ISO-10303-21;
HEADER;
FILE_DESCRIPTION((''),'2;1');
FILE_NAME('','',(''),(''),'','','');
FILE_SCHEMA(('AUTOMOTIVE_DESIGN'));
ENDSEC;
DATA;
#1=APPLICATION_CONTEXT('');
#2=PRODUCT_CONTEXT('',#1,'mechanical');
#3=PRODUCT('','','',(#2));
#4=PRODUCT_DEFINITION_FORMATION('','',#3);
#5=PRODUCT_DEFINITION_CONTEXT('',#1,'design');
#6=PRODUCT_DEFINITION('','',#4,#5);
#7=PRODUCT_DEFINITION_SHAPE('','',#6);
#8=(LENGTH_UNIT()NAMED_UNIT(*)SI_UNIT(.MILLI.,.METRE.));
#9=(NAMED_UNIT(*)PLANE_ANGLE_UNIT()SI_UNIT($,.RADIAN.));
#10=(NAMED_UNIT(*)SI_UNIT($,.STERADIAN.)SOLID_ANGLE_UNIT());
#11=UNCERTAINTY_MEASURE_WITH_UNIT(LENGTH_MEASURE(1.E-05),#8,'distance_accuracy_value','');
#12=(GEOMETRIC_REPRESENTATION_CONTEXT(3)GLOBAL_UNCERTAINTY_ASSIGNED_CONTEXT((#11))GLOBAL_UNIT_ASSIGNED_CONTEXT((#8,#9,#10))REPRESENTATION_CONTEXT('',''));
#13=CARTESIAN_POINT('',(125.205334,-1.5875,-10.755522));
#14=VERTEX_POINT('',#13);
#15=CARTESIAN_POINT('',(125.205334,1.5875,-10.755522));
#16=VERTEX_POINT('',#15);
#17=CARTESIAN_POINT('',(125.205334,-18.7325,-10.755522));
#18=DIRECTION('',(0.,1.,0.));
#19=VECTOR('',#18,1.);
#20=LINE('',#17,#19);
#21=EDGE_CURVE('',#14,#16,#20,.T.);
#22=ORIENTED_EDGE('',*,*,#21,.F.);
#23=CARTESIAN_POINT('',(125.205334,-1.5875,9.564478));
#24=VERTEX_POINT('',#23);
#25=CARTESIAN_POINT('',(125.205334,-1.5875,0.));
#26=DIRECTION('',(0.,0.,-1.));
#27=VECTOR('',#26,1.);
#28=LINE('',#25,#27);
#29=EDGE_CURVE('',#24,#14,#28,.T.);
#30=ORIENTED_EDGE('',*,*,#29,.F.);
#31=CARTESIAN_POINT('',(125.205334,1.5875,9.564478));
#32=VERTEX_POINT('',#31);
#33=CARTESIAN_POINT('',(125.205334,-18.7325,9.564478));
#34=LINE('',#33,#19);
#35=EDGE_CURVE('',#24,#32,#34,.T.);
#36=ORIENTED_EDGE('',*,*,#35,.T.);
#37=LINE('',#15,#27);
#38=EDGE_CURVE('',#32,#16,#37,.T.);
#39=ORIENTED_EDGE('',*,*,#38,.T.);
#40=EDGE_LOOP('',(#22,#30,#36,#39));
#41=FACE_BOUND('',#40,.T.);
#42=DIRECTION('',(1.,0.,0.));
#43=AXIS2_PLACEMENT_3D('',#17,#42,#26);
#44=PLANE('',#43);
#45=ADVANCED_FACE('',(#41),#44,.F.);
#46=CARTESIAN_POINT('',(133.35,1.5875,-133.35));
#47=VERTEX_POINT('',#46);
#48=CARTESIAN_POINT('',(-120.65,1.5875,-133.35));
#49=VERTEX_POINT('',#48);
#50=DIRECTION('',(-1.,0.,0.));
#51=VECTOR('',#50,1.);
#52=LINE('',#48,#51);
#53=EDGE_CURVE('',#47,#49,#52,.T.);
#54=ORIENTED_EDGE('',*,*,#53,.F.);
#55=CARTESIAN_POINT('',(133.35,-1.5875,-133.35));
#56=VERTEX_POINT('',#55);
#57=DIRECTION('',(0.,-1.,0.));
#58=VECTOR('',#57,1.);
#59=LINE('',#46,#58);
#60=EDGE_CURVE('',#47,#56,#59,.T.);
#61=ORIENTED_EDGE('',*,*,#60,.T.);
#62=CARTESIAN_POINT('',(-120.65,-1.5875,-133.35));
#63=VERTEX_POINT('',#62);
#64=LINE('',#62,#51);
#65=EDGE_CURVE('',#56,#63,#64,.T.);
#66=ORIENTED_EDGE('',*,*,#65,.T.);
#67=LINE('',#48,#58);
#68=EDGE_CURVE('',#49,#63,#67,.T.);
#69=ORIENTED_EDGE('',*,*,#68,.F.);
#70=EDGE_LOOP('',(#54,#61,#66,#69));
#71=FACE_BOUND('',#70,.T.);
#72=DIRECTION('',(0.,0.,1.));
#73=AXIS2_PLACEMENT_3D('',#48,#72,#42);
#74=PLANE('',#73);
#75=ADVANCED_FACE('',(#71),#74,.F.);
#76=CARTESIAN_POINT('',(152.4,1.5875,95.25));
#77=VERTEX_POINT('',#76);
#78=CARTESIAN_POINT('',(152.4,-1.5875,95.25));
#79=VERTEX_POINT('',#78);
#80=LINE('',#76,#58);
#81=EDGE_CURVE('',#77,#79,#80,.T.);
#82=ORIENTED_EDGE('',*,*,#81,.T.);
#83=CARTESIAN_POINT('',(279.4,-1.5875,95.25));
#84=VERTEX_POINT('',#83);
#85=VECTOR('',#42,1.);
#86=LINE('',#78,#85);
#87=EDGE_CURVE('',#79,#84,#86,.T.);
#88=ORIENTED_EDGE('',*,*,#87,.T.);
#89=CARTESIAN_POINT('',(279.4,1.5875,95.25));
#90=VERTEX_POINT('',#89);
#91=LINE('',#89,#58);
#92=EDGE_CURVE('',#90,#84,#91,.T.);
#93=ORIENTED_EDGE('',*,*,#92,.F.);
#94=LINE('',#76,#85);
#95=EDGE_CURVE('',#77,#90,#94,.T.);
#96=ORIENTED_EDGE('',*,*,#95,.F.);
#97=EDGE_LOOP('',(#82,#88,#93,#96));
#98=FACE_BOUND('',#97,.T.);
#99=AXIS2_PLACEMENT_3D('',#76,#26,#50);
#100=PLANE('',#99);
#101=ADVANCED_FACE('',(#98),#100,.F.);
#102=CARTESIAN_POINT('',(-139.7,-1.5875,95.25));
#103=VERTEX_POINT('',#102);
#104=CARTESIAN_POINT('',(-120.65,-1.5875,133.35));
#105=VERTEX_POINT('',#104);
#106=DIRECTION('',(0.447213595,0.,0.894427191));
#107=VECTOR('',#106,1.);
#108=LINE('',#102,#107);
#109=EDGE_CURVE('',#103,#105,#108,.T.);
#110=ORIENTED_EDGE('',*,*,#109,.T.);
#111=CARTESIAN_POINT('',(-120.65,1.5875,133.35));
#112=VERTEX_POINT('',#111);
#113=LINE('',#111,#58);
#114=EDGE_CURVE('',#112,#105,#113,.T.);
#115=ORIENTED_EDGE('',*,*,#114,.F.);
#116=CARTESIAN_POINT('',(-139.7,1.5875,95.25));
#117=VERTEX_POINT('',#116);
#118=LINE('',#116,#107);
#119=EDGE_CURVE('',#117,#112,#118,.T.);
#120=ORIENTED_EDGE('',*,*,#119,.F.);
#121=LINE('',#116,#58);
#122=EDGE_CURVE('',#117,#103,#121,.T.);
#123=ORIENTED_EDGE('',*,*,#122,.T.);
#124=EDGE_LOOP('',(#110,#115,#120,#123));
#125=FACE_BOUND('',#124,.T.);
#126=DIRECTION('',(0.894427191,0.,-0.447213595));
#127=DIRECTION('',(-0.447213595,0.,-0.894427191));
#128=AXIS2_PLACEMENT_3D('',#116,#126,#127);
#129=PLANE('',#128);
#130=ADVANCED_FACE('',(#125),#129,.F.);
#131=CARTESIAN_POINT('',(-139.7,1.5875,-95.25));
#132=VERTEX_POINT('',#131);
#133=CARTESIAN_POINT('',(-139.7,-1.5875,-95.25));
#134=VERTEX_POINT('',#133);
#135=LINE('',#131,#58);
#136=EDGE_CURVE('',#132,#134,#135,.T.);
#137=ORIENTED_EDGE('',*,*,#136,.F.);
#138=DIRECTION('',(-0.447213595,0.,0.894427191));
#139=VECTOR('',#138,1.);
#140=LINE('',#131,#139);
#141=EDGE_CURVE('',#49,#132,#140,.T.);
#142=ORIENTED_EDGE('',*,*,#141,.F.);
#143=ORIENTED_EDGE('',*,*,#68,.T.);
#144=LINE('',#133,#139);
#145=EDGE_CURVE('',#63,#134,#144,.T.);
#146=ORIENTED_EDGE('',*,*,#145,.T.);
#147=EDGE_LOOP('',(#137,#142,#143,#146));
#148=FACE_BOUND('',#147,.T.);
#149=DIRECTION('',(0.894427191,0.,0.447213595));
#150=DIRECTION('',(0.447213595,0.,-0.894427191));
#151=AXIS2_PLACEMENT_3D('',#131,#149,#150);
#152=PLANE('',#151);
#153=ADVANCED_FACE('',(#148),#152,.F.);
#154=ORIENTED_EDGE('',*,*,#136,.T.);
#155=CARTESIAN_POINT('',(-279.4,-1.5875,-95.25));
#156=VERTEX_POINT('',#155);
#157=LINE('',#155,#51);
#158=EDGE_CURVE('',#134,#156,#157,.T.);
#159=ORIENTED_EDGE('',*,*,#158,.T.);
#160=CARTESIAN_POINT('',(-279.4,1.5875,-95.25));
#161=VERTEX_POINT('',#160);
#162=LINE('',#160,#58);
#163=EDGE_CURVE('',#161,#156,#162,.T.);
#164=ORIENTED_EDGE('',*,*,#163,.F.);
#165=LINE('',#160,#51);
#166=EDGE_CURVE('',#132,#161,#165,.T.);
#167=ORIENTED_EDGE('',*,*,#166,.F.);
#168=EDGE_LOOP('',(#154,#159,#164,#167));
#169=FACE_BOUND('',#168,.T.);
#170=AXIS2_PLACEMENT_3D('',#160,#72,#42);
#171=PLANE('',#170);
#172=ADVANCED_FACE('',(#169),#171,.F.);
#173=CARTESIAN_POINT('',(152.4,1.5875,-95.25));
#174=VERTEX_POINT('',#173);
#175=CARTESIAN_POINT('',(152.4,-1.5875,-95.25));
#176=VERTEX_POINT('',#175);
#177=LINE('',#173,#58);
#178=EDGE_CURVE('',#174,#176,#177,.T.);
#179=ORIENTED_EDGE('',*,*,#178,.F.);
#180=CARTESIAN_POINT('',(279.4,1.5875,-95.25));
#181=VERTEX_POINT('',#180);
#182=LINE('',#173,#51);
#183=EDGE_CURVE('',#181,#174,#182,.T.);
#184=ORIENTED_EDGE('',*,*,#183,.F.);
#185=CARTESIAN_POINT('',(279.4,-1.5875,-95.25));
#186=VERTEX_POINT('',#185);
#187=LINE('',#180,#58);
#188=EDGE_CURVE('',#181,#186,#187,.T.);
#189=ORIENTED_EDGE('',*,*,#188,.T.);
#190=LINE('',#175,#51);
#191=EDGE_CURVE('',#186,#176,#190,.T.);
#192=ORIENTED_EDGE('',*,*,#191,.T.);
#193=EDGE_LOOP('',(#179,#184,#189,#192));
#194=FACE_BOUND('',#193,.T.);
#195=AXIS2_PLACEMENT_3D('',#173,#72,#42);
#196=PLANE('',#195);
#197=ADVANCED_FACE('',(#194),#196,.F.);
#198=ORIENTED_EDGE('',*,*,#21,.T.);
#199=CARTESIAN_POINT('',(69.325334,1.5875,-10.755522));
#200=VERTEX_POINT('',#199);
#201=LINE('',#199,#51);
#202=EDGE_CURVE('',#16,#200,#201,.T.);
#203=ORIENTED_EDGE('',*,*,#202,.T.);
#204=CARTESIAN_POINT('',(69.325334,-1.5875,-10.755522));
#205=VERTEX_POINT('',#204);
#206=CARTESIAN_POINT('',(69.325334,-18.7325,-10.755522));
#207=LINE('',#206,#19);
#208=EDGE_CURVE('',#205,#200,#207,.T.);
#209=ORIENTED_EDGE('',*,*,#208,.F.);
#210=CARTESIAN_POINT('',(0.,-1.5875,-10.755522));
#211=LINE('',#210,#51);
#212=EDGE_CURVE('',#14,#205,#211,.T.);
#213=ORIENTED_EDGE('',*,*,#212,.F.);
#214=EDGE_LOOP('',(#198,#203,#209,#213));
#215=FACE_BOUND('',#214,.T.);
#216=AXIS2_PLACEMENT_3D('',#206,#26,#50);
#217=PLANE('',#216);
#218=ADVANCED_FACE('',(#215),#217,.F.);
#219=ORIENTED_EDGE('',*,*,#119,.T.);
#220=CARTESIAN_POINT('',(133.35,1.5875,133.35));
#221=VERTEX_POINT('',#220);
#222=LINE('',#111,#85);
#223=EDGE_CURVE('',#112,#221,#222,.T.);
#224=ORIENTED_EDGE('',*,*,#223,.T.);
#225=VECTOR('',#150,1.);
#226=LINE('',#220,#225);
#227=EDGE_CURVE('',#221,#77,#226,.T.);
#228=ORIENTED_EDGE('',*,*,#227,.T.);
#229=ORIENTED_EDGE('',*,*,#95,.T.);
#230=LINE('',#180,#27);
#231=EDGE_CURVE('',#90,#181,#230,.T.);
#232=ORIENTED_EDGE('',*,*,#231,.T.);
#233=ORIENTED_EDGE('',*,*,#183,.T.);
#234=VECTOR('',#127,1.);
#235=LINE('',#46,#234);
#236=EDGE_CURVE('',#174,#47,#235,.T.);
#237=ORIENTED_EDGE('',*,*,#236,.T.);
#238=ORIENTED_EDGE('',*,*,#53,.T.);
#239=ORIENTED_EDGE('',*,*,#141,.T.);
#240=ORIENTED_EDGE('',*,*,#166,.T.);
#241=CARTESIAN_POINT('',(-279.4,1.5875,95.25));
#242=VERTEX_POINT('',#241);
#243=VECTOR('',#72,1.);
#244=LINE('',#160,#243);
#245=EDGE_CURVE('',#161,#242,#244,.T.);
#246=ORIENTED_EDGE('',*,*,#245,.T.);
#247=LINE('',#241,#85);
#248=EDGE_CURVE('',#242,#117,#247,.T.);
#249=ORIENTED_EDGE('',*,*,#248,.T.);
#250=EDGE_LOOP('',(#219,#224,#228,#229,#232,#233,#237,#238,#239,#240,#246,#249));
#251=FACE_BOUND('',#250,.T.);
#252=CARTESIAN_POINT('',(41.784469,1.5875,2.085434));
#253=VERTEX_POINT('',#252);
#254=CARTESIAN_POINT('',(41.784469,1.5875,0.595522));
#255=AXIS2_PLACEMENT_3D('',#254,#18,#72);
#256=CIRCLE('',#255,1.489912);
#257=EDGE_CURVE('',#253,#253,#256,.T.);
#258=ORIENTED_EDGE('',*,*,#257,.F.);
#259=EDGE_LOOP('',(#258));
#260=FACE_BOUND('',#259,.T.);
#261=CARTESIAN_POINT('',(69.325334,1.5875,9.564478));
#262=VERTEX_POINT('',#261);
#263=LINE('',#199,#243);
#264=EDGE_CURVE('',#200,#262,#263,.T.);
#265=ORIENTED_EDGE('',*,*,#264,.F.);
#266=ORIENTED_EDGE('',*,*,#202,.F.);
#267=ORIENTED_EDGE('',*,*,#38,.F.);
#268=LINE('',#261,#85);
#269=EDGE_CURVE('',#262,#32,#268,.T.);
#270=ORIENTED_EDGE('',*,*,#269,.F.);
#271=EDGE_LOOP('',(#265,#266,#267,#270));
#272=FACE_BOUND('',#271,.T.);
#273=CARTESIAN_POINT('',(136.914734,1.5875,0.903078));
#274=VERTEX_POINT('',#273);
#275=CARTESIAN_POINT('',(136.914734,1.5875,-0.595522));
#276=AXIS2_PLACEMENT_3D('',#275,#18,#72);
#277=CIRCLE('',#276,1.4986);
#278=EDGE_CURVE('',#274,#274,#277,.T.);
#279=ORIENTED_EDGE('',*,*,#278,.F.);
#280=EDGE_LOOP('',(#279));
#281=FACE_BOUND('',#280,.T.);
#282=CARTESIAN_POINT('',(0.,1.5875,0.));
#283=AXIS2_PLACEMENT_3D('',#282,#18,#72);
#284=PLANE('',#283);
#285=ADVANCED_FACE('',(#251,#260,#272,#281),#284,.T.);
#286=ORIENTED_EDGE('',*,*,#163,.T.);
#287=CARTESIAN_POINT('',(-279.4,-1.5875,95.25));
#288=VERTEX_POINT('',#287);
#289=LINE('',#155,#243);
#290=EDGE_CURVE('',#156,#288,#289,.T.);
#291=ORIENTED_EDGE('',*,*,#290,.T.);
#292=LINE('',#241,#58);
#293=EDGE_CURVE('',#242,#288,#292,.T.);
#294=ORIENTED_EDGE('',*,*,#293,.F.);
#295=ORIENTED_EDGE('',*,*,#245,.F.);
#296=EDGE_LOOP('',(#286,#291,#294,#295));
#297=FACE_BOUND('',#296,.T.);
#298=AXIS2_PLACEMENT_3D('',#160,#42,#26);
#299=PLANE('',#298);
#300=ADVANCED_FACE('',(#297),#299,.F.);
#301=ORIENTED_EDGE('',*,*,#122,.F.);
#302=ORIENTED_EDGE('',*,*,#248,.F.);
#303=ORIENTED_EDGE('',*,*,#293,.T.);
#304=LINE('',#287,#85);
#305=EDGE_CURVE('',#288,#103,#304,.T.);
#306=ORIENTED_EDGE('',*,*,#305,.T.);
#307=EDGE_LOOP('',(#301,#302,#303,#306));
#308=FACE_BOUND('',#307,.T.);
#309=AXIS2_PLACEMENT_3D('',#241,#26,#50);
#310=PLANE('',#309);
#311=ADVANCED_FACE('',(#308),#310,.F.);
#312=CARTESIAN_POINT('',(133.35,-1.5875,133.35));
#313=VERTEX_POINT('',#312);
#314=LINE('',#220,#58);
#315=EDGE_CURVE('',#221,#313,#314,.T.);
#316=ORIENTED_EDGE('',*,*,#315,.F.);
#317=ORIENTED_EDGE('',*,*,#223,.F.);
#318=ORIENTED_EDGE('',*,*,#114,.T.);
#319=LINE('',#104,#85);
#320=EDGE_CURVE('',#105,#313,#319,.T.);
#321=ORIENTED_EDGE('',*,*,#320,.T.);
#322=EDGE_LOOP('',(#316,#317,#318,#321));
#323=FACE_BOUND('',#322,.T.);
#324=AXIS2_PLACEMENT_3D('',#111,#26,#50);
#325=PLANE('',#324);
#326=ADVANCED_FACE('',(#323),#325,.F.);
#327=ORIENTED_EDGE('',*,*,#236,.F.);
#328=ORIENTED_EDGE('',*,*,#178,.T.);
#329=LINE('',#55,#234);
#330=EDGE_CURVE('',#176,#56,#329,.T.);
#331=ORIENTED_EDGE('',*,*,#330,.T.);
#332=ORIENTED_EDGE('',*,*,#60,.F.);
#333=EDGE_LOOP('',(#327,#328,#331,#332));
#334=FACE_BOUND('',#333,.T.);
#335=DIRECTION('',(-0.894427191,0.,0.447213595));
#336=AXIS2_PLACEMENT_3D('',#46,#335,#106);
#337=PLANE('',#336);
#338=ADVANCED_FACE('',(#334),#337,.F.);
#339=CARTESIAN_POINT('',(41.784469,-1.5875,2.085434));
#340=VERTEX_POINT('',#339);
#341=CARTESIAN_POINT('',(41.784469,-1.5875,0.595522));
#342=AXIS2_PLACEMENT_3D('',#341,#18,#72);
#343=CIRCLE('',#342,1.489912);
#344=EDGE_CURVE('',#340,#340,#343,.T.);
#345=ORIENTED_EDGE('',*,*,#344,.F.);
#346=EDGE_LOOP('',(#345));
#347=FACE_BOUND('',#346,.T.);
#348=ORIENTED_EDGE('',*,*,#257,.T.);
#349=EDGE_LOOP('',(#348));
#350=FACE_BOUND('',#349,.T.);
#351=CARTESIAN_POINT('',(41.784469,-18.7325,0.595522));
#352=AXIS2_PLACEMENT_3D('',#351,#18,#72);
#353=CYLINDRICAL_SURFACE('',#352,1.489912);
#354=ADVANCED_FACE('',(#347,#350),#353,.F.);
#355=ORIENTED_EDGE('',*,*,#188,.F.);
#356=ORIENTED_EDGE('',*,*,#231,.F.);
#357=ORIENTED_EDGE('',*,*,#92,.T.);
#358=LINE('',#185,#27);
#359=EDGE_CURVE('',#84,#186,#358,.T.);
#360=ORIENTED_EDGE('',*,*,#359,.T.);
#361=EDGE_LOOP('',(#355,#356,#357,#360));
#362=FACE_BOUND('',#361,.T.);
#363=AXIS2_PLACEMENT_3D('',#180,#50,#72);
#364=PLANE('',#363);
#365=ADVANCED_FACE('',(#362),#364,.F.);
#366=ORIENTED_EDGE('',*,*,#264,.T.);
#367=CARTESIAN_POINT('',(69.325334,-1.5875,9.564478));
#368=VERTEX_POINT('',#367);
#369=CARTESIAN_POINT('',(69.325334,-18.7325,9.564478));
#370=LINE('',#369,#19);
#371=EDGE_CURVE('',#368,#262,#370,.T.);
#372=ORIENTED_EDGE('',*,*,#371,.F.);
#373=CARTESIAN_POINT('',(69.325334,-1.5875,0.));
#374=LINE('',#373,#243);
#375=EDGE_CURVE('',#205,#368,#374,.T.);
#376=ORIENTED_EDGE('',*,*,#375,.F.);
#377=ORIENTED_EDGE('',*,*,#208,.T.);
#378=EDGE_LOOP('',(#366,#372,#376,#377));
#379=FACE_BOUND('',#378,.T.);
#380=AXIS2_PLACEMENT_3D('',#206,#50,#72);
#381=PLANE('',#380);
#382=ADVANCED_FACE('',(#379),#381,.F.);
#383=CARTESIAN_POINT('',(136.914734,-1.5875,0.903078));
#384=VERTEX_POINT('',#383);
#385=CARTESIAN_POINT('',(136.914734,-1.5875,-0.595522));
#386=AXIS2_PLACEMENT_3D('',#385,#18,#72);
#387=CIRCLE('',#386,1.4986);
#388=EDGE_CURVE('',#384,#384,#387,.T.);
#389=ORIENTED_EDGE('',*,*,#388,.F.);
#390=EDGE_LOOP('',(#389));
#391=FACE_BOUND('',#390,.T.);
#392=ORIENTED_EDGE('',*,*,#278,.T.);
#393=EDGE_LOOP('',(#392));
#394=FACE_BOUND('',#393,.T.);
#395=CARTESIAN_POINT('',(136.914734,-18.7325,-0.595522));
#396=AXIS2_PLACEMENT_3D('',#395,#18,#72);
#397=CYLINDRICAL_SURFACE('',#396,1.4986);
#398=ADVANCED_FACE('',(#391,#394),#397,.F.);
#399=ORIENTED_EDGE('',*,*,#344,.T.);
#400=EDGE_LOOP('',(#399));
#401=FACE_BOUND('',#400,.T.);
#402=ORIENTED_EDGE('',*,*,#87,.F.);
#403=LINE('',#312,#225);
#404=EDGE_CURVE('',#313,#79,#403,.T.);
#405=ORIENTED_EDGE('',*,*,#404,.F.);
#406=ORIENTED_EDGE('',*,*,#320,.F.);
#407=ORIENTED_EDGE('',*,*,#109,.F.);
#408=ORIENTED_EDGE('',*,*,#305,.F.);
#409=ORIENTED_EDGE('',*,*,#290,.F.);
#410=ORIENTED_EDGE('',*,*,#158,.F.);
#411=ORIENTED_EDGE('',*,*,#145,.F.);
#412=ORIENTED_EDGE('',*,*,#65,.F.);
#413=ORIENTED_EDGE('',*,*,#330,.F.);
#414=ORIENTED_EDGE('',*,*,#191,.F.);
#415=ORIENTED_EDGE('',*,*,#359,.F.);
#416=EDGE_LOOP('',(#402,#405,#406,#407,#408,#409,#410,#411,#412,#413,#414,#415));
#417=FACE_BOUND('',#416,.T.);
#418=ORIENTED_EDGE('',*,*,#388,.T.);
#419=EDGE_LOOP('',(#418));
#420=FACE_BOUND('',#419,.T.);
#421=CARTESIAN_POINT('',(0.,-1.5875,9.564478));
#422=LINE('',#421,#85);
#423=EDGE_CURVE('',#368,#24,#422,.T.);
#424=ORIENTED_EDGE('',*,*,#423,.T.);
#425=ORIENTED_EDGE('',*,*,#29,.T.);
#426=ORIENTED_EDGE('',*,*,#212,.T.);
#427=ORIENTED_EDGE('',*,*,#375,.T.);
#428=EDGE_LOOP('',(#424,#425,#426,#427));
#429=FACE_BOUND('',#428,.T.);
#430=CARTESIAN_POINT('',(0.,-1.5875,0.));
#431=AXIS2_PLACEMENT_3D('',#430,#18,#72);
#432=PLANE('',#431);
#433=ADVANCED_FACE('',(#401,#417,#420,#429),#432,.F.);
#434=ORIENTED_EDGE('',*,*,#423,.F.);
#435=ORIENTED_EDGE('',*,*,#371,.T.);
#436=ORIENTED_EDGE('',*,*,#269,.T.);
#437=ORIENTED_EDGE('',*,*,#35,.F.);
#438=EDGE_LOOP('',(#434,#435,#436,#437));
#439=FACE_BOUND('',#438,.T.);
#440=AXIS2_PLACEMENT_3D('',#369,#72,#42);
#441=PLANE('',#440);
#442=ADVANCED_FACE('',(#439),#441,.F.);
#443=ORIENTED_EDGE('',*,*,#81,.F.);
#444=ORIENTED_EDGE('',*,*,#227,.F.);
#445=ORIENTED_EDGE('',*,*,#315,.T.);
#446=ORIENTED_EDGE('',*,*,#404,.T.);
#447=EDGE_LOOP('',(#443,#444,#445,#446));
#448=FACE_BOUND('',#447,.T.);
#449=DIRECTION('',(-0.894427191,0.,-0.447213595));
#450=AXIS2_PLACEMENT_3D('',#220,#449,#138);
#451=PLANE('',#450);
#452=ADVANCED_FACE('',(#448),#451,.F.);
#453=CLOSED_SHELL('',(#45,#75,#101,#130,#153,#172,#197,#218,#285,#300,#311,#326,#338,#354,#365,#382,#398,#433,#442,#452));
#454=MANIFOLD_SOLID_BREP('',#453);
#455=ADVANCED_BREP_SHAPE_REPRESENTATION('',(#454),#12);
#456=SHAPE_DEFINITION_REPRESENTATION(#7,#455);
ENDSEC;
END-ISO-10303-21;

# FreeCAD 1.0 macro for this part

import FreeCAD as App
import Part
import Sketcher
from FreeCAD import Vector
Q = App.Units.Quantity


def add_polygon(sketch, points):
    """Adds a closed chain of lines whose ends are joined by coincident constraints."""
    first, n = sketch.GeometryCount, len(points)
    for a, b in zip(points, points[1:] + points[:1]):
        sketch.addGeometry(Part.LineSegment(App.Vector(*a, 0), App.Vector(*b, 0)), False)
    for i in range(n):
        sketch.addConstraint(Sketcher.Constraint("Coincident", first + i, 2, first + (i + 1) % n, 1))

doc = App.newDocument("Part")
body = doc.addObject("PartDesign::Body", "Body")

# Sketch on XZ plane
sketch1 = body.newObject("Sketcher::SketchObject", "Sketch")
sketch1.AttachmentSupport = (doc.getObject("XZ_Plane"), [""])
sketch1.MapMode = "FlatFace"
add_polygon(sketch1, [(-139.7, -95.25), (-279.4, -95.25), (-279.4, 95.25), (-139.7, 95.25), (-120.65, 133.35), (133.35, 133.35), (152.4, 95.25), (279.4, 95.25), (279.4, -95.25), (152.4, -95.25), (133.35, -133.35), (-120.65, -133.35)])  # lines 0-11
sketch1.addConstraint(Sketcher.Constraint("Horizontal", 0))
sketch1.addConstraint(Sketcher.Constraint("Vertical", 1))
sketch1.addConstraint(Sketcher.Constraint("Horizontal", 2))
sketch1.addConstraint(Sketcher.Constraint("Horizontal", 4))
sketch1.addConstraint(Sketcher.Constraint("Horizontal", 6))
sketch1.addConstraint(Sketcher.Constraint("Vertical", 7))
sketch1.addConstraint(Sketcher.Constraint("Horizontal", 8))
sketch1.addConstraint(Sketcher.Constraint("Horizontal", 10))
sketch1.addConstraint(Sketcher.Constraint("Symmetric", 0, 2, 6, 2, -1, 1))
sketch1.addConstraint(Sketcher.Constraint("Symmetric", 5, 2, 8, 2, -1))
sketch1.addConstraint(Sketcher.Constraint("Symmetric", 4, 2, 9, 2, -1))
sketch1.addConstraint(Sketcher.Constraint("Symmetric", 2, 2, 11, 2, -1))
sketch1.addConstraint(Sketcher.Constraint("Parallel", 3, 9))
sketch1.addConstraint(Sketcher.Constraint("Parallel", 5, 11))
sketch1.addConstraint(Sketcher.Constraint("DistanceX", 4, 1, 4, 2, Q("10 in")))
sketch1.addConstraint(Sketcher.Constraint("DistanceX", 6, 1, 6, 2, Q("5 in")))
sketch1.addConstraint(Sketcher.Constraint("DistanceX", 0, 2, 0, 1, Q("5.5 in")))
sketch1.addConstraint(Sketcher.Constraint("DistanceY", 1, 1, 1, 2, Q("7.5 in")))
sketch1.addConstraint(Sketcher.Constraint("DistanceX", 0, 2, -1, 1, Q("11 in")))
sketch1.addConstraint(Sketcher.Constraint("DistanceY", 0, 2, 3, 2, Q("9 in")))
pad1 = body.newObject("PartDesign::Pad", "Pad")
pad1.Profile = sketch1
pad1.Length = Q("0.125 in")
pad1.Midplane = True

# Sketch on XZ plane
sketch2 = body.newObject("Sketcher::SketchObject", "Sketch001")
sketch2.AttachmentSupport = (doc.getObject("XZ_Plane"), [""])
sketch2.MapMode = "FlatFace"
sketch2.AttachmentOffset = App.Placement(Vector(0, 0, -0.0625 * 25.4), App.Rotation())
sketch2.addGeometry(Part.Circle(Vector(136.914734, -0.595522, 0), Vector(0, 0, 1), 1.4986), False)  # 0
sketch2.addGeometry(Part.Circle(Vector(41.784469, 0.595522, 0), Vector(0, 0, 1), 1.489912), False)  # 1
add_polygon(sketch2, [(69.325334, -10.755522), (69.325334, 9.564478), (125.205334, 9.564478), (125.205334, -10.755522)])  # lines 2-5
sketch2.addConstraint(Sketcher.Constraint("Vertical", 2))
sketch2.addConstraint(Sketcher.Constraint("Horizontal", 3))
sketch2.addConstraint(Sketcher.Constraint("Vertical", 4))
sketch2.addConstraint(Sketcher.Constraint("Horizontal", 5))
sketch2.addConstraint(Sketcher.Constraint("Diameter", 0, Q("0.118 in")))
sketch2.addConstraint(Sketcher.Constraint("DistanceX", 3, 1, 3, 2, Q("2.2 in")))
sketch2.addConstraint(Sketcher.Constraint("DistanceY", 2, 1, 2, 2, Q("0.8 in")))
sketch2.addConstraint(Sketcher.Constraint("DistanceY", 0, 3, 2, 2, Q("0.4 in")))
sketch2.addConstraint(Sketcher.Constraint("DistanceX", 2, 2, 0, 3, Q("2.661 in")))
sketch2.addConstraint(Sketcher.Constraint("Diameter", 1, 2.979824))
sketch2.addConstraint(Sketcher.Constraint("DistanceX", -1, 1, 1, 3, 41.784469))
sketch2.addConstraint(Sketcher.Constraint("DistanceX", -1, 1, 0, 3, 136.914734))
sketch2.addConstraint(Sketcher.Constraint("DistanceY", 0, 3, -1, 1, 0.595522))
sketch2.addConstraint(Sketcher.Constraint("DistanceY", -1, 1, 1, 3, 0.595522))
pocket1 = body.newObject("PartDesign::Pocket", "Pocket")
pocket1.Profile = sketch2
pocket1.Length = Q("0.8 in")
pocket1.Reversed = True

doc.recompute()
